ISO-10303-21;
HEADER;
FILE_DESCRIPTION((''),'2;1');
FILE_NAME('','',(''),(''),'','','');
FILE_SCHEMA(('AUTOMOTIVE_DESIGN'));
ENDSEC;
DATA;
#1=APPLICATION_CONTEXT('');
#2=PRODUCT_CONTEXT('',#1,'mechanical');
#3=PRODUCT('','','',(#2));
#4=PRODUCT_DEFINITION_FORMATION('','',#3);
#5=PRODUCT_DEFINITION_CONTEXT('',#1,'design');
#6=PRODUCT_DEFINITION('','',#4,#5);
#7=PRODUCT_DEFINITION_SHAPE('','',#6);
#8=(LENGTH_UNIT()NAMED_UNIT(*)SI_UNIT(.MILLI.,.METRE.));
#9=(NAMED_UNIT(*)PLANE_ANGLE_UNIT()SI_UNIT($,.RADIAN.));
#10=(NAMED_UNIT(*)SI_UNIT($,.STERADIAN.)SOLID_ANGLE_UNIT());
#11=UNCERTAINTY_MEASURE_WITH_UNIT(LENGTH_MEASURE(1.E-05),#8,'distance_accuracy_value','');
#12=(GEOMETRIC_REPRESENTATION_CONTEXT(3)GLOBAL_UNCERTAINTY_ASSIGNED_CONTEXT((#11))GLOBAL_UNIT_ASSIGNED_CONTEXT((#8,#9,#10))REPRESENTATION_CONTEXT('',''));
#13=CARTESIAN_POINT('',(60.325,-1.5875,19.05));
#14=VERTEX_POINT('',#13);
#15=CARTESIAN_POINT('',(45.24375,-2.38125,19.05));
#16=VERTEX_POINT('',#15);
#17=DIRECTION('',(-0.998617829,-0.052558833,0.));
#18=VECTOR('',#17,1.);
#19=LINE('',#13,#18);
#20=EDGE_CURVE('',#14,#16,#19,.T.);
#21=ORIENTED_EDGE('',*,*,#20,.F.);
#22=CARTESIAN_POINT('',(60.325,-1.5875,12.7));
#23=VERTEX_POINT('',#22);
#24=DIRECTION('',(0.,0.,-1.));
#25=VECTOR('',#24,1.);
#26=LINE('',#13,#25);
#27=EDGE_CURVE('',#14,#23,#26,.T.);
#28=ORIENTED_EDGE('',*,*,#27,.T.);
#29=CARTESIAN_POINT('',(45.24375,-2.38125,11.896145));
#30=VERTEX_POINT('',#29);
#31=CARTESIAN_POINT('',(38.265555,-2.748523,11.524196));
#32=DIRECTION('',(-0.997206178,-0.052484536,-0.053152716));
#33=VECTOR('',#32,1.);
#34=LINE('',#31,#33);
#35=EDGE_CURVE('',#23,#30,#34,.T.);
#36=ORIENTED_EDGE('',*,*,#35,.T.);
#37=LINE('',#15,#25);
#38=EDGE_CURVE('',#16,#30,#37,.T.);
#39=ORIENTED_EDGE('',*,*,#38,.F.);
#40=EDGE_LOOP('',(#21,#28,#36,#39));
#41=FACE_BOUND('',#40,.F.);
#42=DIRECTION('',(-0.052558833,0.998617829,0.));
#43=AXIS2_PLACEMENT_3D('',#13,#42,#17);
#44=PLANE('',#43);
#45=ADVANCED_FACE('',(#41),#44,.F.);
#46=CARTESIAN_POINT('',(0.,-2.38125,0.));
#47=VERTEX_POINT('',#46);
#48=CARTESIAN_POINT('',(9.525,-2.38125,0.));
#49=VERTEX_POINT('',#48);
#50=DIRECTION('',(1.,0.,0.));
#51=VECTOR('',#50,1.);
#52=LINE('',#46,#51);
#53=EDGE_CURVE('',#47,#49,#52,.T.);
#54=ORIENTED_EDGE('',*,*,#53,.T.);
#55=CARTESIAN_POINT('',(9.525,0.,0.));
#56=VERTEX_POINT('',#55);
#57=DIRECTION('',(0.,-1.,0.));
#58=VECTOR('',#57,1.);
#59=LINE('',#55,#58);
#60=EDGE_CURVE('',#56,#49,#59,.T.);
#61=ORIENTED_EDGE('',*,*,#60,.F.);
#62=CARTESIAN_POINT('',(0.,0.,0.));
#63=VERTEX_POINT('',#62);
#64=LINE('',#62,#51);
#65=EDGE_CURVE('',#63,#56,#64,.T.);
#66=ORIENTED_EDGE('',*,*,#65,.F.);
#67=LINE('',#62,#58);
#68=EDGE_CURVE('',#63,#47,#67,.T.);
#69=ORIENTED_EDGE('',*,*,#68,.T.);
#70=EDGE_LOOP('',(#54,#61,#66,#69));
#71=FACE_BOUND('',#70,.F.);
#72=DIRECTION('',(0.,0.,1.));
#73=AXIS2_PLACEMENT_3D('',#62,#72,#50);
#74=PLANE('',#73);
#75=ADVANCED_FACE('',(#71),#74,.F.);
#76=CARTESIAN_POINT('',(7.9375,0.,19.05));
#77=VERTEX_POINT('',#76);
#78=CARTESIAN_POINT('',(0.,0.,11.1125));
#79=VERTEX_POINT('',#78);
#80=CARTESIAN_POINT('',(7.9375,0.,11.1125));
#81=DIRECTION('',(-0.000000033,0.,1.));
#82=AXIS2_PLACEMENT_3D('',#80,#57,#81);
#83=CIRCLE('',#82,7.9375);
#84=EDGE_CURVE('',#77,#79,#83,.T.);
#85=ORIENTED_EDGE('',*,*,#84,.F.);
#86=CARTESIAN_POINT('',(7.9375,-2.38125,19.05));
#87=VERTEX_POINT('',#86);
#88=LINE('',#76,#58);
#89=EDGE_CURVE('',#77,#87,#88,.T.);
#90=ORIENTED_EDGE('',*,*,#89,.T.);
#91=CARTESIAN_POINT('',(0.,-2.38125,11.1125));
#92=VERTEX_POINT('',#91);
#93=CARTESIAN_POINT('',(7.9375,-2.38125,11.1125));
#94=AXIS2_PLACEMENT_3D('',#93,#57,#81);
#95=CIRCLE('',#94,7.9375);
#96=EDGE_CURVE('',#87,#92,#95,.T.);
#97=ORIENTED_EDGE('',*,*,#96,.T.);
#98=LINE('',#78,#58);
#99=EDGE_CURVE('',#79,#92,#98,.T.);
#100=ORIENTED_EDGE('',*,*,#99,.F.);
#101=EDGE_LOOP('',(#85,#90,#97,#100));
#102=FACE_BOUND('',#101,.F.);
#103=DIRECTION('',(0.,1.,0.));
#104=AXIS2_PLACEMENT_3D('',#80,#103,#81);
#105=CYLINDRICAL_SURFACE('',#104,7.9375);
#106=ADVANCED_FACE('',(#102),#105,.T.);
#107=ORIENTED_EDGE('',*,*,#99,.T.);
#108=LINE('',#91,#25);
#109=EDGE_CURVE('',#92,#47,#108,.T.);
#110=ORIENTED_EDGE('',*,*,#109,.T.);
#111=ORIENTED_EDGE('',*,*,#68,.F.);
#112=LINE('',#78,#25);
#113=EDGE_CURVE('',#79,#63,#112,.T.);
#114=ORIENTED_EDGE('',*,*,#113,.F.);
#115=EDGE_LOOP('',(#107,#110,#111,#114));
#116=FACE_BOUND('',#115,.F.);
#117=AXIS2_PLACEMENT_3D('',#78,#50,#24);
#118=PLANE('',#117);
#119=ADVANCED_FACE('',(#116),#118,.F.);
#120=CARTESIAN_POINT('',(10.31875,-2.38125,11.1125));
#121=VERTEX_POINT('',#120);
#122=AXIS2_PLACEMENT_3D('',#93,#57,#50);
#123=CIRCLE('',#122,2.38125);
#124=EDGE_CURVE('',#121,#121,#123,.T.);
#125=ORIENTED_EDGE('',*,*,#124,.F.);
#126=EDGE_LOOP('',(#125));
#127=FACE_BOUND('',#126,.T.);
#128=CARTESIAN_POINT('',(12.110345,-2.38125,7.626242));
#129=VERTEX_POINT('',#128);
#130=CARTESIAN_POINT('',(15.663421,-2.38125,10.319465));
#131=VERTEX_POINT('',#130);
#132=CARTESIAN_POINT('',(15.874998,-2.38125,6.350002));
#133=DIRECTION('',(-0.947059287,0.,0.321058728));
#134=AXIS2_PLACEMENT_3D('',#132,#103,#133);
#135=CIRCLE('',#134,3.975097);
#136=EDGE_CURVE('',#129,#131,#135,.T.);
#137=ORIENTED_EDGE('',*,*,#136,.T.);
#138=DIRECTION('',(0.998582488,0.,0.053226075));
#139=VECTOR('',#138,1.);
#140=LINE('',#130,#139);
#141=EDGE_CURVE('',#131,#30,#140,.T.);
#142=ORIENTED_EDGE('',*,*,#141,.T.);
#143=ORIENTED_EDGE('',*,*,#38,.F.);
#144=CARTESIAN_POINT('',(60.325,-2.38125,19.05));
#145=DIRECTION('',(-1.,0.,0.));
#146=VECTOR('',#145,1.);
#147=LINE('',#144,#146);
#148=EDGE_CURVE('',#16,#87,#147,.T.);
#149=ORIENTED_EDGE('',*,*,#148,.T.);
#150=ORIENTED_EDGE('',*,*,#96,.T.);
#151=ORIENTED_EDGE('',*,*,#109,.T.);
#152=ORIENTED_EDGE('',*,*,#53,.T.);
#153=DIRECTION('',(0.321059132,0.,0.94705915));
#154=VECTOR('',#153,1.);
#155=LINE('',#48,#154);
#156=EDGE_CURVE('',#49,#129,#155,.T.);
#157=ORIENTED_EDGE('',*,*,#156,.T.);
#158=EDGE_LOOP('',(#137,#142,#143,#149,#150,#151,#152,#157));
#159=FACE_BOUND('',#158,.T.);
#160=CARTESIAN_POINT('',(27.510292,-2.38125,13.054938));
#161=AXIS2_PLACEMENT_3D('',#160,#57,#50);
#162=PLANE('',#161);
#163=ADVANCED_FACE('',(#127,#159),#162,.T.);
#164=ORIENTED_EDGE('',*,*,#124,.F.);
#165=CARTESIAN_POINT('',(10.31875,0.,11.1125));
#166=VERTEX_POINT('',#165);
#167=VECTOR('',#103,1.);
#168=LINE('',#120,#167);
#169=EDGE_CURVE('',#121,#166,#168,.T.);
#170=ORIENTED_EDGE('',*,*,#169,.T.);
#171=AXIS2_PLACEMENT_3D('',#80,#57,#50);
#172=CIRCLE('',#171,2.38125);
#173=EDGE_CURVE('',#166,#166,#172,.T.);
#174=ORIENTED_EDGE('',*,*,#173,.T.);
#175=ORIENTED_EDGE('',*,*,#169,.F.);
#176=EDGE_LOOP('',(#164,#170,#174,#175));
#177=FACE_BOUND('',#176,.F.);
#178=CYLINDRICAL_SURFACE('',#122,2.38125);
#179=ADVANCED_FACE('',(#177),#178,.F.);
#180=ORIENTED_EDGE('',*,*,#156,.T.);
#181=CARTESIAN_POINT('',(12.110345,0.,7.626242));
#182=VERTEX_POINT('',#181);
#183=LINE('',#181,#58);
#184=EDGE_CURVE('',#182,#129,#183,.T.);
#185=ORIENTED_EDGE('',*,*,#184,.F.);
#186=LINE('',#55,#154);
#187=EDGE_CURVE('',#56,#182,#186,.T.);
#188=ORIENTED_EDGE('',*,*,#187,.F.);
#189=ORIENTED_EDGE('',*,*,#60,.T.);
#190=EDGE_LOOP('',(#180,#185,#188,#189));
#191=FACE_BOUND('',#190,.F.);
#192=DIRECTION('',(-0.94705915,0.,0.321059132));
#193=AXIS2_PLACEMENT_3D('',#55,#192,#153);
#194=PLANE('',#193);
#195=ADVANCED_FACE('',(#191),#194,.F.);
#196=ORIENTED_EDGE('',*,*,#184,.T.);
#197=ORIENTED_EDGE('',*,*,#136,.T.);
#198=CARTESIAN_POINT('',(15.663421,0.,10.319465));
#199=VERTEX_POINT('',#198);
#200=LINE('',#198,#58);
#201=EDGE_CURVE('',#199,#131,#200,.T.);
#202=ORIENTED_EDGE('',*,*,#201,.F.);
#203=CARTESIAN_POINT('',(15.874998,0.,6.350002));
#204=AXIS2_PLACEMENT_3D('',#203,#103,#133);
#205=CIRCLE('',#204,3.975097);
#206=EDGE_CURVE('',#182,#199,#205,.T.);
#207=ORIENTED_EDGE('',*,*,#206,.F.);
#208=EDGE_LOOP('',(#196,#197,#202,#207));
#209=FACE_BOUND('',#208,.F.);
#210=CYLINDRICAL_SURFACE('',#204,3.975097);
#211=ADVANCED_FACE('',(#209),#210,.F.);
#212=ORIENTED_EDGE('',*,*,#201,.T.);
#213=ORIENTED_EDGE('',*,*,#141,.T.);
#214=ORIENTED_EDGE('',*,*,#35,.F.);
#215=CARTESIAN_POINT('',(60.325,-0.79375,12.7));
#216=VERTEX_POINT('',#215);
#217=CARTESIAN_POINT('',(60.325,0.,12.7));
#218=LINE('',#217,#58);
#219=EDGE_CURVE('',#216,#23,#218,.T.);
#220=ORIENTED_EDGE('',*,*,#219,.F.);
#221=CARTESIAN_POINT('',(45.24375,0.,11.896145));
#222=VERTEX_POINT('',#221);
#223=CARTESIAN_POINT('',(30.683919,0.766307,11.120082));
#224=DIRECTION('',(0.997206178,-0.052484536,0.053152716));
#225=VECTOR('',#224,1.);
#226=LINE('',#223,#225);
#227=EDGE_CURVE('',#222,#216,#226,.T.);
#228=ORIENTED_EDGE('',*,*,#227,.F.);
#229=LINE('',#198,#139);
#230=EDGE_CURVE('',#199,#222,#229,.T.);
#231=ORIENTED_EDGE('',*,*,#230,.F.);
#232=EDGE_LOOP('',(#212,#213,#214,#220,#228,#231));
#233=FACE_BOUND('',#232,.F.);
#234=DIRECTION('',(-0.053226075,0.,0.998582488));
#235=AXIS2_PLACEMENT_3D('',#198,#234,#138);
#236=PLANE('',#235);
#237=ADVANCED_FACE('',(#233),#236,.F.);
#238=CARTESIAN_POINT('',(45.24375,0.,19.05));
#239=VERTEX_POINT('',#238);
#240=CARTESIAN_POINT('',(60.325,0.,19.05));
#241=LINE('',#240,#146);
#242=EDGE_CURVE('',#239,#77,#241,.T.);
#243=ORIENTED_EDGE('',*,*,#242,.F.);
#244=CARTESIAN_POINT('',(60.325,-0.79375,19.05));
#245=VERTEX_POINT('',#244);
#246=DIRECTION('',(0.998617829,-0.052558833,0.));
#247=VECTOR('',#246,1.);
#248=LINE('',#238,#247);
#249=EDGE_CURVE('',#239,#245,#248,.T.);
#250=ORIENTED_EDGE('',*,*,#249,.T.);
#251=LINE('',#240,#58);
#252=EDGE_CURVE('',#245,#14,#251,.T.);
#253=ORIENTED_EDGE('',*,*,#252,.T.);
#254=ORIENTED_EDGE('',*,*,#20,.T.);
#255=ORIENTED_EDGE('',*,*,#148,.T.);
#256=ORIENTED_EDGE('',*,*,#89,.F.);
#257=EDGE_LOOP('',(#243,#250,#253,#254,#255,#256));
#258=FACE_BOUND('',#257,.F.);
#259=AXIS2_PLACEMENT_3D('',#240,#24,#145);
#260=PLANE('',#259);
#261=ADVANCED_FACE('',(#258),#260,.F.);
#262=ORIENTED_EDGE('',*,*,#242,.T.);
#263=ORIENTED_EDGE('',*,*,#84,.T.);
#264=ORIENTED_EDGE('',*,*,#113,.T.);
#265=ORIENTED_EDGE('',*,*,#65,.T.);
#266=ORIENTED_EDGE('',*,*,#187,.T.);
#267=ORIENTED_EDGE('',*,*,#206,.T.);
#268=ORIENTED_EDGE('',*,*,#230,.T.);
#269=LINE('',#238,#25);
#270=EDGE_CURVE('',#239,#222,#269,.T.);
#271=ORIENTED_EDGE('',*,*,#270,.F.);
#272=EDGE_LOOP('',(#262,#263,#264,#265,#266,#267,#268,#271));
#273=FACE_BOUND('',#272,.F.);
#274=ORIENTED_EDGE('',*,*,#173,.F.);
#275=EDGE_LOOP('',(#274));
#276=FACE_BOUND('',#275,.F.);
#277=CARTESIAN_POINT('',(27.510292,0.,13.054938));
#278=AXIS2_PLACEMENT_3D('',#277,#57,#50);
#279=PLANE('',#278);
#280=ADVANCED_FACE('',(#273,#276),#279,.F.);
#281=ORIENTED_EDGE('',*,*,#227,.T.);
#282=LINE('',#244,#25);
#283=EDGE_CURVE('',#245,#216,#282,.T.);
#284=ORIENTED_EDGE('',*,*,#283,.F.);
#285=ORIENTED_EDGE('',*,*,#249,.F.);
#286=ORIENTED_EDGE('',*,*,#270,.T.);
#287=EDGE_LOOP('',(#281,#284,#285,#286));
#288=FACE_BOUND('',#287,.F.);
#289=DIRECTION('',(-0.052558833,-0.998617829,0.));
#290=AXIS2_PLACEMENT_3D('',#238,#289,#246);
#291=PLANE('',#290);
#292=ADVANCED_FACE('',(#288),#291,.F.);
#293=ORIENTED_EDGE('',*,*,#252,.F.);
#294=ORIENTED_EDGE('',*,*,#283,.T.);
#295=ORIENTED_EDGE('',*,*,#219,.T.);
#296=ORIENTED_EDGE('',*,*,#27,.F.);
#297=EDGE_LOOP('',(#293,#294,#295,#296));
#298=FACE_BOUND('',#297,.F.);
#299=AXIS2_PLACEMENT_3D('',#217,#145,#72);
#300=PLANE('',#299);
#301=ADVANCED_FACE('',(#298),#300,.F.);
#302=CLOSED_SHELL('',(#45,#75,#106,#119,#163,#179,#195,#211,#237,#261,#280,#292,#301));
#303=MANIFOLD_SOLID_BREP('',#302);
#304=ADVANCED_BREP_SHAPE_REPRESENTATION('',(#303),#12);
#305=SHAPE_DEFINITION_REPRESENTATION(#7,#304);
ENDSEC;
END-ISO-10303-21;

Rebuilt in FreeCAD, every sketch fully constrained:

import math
import FreeCAD as App
import Part
import Sketcher

V = App.Vector
Q = App.Units.Quantity


def add_polygon(sketch, points):
    """Adds a closed chain of lines whose ends are joined by coincident constraints."""
    first, n = sketch.GeometryCount, len(points)
    for a, b in zip(points, points[1:] + points[:1]):
        sketch.addGeometry(Part.LineSegment(App.Vector(*a, 0), App.Vector(*b, 0)), False)
    for i in range(n):
        sketch.addConstraint(Sketcher.Constraint("Coincident", first + i, 2, first + (i + 1) % n, 1))

doc = App.newDocument("Part")
body = doc.addObject("PartDesign::Body", "Body")

# Sketch on XZ plane
sketch1 = doc.addObject("Sketcher::SketchObject", "Sketch")
body.addObject(sketch1)
sketch1.AttachmentSupport = (doc.XZ_Plane, [""])
sketch1.MapMode = "FlatFace"
sketch1.addGeometry(Part.LineSegment(V(60.3, 19.1, 0), V(7.9, 19.1, 0)), False)
sketch1.addGeometry(Part.ArcOfCircle(Part.Circle(V(7.9, 11.1, 0), V(0, 0, 1), 7.9), math.radians(90), math.radians(180)), False)
sketch1.addGeometry(Part.LineSegment(V(0, 11.1, 0), V(0, 0, 0)), False)
sketch1.addGeometry(Part.LineSegment(V(0, 0, 0), V(9.5, 0, 0)), False)
sketch1.addGeometry(Part.LineSegment(V(9.5, 0, 0), V(12.1, 7.6, 0)), False)
sketch1.addGeometry(Part.ArcOfCircle(Part.Circle(V(15.9, 6.4, 0), V(0, 0, 1), 4), math.radians(93), math.radians(161)), False)
sketch1.addGeometry(Part.LineSegment(V(15.7, 10.3, 0), V(60.3, 12.7, 0)), False)
sketch1.addGeometry(Part.LineSegment(V(60.3, 12.7, 0), V(60.3, 19.1, 0)), False)
sketch1.addConstraint(Sketcher.Constraint("Tangent", 0, 2, 1, 1))
sketch1.addConstraint(Sketcher.Constraint("Tangent", 1, 2, 2, 1))
sketch1.addConstraint(Sketcher.Constraint("Coincident", 2, 2, 3, 1))
sketch1.addConstraint(Sketcher.Constraint("Coincident", 3, 2, 4, 1))
sketch1.addConstraint(Sketcher.Constraint("Tangent", 4, 2, 5, 2))
sketch1.addConstraint(Sketcher.Constraint("Tangent", 5, 1, 6, 1))
sketch1.addConstraint(Sketcher.Constraint("Coincident", 6, 2, 7, 1))
sketch1.addConstraint(Sketcher.Constraint("Coincident", 7, 2, 0, 1))
sketch1.addConstraint(Sketcher.Constraint("Horizontal", 0))
sketch1.addConstraint(Sketcher.Constraint("Vertical", 2))
sketch1.addConstraint(Sketcher.Constraint("Horizontal", 3))
sketch1.addConstraint(Sketcher.Constraint("Vertical", 7))
sketch1.addConstraint(Sketcher.Constraint("Coincident", 2, 2, -1, 1))
sketch1.addConstraint(Sketcher.Constraint("Radius", 1, Q("0.3125 in")))
sketch1.addConstraint(Sketcher.Constraint("DistanceX", 3, 2, 6, 2, Q("2 in")))
sketch1.addConstraint(Sketcher.Constraint("DistanceY", 7, 1, 7, 2, Q("0.25 in")))
sketch1.addConstraint(Sketcher.Constraint("DistanceY", -1, 1, 6, 2, Q("0.5 in")))
sketch1.addConstraint(Sketcher.Constraint("Radius", 5, Q("0.1564999 in")))
sketch1.addConstraint(Sketcher.Constraint("DistanceY", 5, 3, 0, 2, Q("0.4999999 in")))
sketch1.addConstraint(Sketcher.Constraint("DistanceX", 0, 2, 0, 1, Q("2.0625 in")))
sketch1.addConstraint(Sketcher.Constraint("DistanceX", 3, 2, 5, 3, Q("0.2499999 in")))
pad1 = doc.addObject("PartDesign::Pad", "Pad")
body.addObject(pad1)
pad1.Profile = sketch1
pad1.Length = Q("0.09375 in")

# Sketch on XZ plane
sketch2 = doc.addObject("Sketcher::SketchObject", "Sketch001")
body.addObject(sketch2)
sketch2.AttachmentSupport = (doc.XZ_Plane, [""])
sketch2.MapMode = "FlatFace"
sketch2.AttachmentOffset = App.Placement(V(0, 0, 0.09375 * 25.4), App.Rotation())
sketch2.addGeometry(Part.Circle(V(7.9, 11.1, 0), V(0, 0, 1), 2.4), False)
sketch2.addConstraint(Sketcher.Constraint("Diameter", 0, Q("0.1875 in")))
sketch2.addConstraint(Sketcher.Constraint("DistanceX", -1, 1, 0, 3, Q("0.3125 in")))
sketch2.addConstraint(Sketcher.Constraint("DistanceY", -1, 1, 0, 3, Q("0.4375 in")))
pocket1 = doc.addObject("PartDesign::Pocket", "Pocket")
body.addObject(pocket1)
pocket1.Profile = sketch2
pocket1.Length = Q("1 in")

# Sketch on XY plane
sketch3 = doc.addObject("Sketcher::SketchObject", "Sketch002")
body.addObject(sketch3)
sketch3.AttachmentSupport = (doc.XY_Plane, [""])
sketch3.MapMode = "FlatFace"
sketch3.AttachmentOffset = App.Placement(V(0, 0, 0.75 * 25.4), App.Rotation())
add_polygon(sketch3, [(60.3, 0), (45.2, 0), (60.3, -0.8)])  # lines 0-2
add_polygon(sketch3, [(60.3, -2.4), (60.3, -1.6), (45.2, -2.4)])  # lines 3-5
sketch3.addConstraint(Sketcher.Constraint("Horizontal", 0))
sketch3.addConstraint(Sketcher.Constraint("Vertical", 2))
sketch3.addConstraint(Sketcher.Constraint("Vertical", 3))
sketch3.addConstraint(Sketcher.Constraint("Horizontal", 5))
sketch3.addConstraint(Sketcher.Constraint("PointOnObject", 0, 2, -1))
sketch3.addConstraint(Sketcher.Constraint("Vertical", 2, 2, 3, 2))
sketch3.addConstraint(Sketcher.Constraint("Vertical", 0, 2, 4, 2))
sketch3.addConstraint(Sketcher.Constraint("Equal", 2, 3))
sketch3.addConstraint(Sketcher.Constraint("DistanceX", 0, 2, 0, 1, Q("0.59375 in")))
sketch3.addConstraint(Sketcher.Constraint("DistanceY", 2, 1, 2, 2, Q("0.03125 in")))
sketch3.addConstraint(Sketcher.Constraint("DistanceX", -1, 1, 0, 2, Q("1.78125 in")))
sketch3.addConstraint(Sketcher.Constraint("DistanceY", 3, 2, -1, 1, Q("0.0625 in")))
pocket2 = doc.addObject("PartDesign::Pocket", "Pocket001")
body.addObject(pocket2)
pocket2.Profile = sketch3
pocket2.Length = Q("1 in")

doc.recompute()
